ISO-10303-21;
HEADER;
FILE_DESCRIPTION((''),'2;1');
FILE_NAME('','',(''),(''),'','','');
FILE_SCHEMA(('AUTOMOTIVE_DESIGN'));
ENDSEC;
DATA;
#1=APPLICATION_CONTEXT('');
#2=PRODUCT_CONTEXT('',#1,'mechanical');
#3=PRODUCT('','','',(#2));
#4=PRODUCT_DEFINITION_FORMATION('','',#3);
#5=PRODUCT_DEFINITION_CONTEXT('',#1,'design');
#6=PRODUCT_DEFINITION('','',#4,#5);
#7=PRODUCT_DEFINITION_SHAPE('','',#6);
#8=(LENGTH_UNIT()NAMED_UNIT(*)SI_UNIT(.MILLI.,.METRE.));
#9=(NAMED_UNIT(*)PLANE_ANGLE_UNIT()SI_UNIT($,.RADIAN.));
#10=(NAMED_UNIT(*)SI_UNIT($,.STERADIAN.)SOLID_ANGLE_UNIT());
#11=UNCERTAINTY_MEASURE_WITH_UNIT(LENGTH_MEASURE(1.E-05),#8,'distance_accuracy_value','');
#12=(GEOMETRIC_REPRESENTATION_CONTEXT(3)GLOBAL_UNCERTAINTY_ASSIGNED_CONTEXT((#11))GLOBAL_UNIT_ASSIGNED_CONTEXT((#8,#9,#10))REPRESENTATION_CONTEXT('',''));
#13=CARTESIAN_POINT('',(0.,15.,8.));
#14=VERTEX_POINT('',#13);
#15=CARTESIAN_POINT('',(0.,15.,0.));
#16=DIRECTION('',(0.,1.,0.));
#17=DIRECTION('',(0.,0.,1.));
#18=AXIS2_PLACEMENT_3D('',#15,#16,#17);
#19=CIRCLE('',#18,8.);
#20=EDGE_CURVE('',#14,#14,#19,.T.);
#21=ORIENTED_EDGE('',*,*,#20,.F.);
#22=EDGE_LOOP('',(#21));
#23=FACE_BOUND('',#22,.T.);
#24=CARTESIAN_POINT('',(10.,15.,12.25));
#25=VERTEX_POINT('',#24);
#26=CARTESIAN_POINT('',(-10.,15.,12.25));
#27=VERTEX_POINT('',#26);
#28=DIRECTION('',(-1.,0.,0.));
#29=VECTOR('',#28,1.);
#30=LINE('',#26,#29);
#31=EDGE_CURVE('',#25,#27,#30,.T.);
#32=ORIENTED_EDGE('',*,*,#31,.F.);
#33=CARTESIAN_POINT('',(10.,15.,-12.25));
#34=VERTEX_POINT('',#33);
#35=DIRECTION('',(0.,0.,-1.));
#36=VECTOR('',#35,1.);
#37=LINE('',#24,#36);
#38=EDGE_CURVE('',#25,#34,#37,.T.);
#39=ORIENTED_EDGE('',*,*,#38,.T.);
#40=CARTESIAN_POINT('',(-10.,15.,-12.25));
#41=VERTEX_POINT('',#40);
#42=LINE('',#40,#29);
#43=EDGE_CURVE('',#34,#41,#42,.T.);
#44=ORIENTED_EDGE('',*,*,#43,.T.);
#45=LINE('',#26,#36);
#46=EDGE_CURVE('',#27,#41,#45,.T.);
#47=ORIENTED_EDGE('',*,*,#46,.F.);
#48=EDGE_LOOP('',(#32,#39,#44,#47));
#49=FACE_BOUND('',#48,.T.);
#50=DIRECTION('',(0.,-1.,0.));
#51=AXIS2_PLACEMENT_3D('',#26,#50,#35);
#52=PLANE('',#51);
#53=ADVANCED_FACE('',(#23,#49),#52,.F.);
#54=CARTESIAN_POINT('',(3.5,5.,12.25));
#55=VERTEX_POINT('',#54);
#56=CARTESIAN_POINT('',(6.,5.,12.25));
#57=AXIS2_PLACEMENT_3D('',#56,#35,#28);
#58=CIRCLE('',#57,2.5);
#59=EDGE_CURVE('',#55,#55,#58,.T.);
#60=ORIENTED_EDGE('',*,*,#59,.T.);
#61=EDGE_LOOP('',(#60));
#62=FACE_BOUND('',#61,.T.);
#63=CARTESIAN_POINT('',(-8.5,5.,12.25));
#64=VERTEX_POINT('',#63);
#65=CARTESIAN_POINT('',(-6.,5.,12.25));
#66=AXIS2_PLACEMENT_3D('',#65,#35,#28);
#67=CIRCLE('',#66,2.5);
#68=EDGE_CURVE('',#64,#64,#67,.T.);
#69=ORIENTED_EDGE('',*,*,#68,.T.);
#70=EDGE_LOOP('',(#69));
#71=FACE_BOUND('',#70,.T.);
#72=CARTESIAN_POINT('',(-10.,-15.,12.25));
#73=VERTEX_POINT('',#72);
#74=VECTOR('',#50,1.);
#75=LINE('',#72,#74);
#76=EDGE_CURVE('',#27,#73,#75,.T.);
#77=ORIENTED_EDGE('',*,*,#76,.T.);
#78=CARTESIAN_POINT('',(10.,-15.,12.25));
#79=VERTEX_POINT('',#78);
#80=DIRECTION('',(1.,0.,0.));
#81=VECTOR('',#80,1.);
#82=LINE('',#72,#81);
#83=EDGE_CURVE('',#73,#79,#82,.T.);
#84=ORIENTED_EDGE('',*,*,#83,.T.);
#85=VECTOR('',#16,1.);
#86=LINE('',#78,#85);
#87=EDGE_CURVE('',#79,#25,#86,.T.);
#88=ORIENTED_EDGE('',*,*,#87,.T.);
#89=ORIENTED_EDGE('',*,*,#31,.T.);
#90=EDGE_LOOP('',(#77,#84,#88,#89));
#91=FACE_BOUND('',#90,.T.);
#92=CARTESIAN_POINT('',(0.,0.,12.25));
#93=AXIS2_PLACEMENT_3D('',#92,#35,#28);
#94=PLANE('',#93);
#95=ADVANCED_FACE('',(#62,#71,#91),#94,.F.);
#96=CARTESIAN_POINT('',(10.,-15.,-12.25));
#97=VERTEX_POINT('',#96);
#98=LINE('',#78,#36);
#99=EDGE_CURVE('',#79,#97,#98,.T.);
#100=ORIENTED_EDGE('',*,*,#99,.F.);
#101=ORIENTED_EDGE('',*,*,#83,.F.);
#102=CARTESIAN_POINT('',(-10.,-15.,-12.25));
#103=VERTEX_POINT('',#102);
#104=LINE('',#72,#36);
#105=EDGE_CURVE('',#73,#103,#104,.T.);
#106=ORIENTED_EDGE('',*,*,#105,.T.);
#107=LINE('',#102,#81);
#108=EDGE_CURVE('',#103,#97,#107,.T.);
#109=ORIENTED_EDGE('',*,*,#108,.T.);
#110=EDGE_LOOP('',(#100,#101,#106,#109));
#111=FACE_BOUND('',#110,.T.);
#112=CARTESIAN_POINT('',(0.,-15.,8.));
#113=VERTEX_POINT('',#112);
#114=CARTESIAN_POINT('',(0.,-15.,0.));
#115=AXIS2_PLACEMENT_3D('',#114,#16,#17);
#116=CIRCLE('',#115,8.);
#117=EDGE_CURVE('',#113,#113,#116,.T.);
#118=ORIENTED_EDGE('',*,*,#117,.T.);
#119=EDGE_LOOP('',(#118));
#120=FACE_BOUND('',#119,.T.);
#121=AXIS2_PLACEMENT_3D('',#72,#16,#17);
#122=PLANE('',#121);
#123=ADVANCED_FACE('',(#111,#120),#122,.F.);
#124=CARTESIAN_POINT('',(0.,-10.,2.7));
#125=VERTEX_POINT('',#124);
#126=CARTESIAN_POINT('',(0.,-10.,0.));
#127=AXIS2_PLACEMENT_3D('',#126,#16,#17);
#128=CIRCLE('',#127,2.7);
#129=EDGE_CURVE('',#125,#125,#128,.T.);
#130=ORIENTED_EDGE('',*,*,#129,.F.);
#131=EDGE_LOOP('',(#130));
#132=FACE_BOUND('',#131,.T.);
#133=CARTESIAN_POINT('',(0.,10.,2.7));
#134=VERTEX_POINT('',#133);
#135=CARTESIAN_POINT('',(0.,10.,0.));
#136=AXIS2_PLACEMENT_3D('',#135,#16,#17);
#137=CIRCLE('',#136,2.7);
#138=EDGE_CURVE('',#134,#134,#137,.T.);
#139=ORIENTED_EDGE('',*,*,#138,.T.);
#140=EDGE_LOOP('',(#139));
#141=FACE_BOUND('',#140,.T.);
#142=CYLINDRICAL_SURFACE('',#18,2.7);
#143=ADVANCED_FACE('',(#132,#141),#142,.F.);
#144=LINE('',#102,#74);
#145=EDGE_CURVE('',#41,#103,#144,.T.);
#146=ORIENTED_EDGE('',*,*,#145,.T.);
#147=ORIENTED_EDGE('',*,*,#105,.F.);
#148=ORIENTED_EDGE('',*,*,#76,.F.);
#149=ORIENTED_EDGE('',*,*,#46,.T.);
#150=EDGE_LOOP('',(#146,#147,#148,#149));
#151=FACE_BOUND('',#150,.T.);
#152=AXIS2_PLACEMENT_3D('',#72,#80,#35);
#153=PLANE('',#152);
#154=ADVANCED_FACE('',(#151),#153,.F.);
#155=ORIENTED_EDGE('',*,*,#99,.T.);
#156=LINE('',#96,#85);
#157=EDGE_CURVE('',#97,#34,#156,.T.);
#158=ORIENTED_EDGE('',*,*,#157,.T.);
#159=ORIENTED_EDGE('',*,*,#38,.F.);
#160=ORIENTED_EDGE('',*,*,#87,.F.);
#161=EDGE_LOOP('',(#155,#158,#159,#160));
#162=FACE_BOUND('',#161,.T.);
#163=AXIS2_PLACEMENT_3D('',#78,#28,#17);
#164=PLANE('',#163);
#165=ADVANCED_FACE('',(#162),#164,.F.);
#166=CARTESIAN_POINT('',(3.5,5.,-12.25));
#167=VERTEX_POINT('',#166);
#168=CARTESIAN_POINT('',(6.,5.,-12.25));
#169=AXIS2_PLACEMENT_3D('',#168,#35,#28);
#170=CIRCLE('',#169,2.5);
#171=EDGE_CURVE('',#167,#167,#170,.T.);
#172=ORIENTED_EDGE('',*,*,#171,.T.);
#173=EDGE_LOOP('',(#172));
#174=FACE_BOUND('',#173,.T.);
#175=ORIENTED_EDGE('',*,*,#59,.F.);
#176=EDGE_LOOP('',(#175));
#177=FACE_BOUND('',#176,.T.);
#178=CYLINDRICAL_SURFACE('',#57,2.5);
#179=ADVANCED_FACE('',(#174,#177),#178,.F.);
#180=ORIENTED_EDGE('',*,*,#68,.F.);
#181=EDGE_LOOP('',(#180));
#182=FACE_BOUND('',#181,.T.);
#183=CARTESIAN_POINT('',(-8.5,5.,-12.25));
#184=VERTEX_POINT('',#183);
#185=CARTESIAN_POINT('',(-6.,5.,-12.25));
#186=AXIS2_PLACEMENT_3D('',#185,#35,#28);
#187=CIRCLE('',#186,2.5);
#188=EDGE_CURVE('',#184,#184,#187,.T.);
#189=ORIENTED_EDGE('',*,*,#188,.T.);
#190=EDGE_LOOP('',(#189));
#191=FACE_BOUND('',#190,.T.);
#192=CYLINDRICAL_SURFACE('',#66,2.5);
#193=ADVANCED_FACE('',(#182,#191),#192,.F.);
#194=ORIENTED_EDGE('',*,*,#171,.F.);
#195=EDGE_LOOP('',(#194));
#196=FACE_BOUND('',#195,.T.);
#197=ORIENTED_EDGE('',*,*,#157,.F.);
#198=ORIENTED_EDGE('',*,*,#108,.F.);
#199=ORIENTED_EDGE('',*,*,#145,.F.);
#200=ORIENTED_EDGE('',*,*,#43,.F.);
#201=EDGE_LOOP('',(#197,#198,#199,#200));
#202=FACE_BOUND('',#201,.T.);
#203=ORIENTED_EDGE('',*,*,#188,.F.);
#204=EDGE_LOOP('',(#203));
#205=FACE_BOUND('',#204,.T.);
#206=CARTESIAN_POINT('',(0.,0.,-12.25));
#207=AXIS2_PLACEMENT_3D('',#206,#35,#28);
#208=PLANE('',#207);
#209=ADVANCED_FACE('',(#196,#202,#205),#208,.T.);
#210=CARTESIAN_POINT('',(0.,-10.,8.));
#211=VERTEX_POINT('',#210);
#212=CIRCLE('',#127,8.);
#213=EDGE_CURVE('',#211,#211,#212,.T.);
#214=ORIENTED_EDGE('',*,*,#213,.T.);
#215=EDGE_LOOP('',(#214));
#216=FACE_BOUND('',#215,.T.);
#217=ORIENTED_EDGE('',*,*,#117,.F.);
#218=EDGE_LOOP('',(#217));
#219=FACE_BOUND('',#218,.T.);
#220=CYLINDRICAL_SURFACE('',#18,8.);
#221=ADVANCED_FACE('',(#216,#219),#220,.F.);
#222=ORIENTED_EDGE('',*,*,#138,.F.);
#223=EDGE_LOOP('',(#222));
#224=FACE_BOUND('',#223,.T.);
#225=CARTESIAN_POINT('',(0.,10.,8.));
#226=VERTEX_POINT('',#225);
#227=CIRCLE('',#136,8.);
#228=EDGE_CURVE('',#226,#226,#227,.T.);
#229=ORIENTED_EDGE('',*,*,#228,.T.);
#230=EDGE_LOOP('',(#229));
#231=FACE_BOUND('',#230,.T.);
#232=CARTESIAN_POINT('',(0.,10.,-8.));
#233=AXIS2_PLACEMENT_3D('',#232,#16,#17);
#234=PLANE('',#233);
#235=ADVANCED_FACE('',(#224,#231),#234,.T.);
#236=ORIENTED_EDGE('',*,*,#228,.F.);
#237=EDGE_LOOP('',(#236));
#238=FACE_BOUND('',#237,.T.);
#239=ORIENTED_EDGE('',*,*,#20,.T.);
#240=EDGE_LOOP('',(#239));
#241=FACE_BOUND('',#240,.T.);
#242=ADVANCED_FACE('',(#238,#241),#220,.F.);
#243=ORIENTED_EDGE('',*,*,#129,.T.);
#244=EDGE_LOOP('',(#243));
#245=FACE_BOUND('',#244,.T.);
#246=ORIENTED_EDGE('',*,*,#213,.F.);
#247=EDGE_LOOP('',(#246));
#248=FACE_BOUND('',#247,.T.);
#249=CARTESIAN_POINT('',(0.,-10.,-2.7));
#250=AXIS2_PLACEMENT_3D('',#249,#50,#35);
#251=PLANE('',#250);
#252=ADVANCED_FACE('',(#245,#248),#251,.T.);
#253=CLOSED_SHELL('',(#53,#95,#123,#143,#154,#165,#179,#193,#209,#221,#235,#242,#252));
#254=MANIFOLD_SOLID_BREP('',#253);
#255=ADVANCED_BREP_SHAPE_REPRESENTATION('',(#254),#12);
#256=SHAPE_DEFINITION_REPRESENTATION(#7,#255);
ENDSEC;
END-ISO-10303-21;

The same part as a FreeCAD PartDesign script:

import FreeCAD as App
import Part
import Sketcher
Q = App.Units.Quantity


def add_polygon(sketch, points):
    """Adds a closed chain of lines whose ends are joined by coincident constraints."""
    first, n = sketch.GeometryCount, len(points)
    for a, b in zip(points, points[1:] + points[:1]):
        sketch.addGeometry(Part.LineSegment(App.Vector(*a, 0), App.Vector(*b, 0)), False)
    for i in range(n):
        sketch.addConstraint(Sketcher.Constraint("Coincident", first + i, 2, first + (i + 1) % n, 1))

doc = App.newDocument("Part")
body = doc.addObject("PartDesign::Body", "Body")

# Sketch on XY plane
sketch1 = doc.addObject("Sketcher::SketchObject", "Sketch")
body.addObject(sketch1)
sketch1.AttachmentSupport = (doc.XY_Plane, [""])
sketch1.MapMode = "FlatFace"
add_polygon(sketch1, [(-10, 15), (-10, -15), (10, -15), (10, 15)])  # lines 0-3
sketch1.addConstraint([
    Sketcher.Constraint("Vertical", 0),
    Sketcher.Constraint("Horizontal", 1),
    Sketcher.Constraint("Vertical", 2),
    Sketcher.Constraint("Horizontal", 3),
    Sketcher.Constraint("Symmetric", 0, 2, 2, 2, -1, 1),
    Sketcher.Constraint("DistanceX", 1, 1, 1, 2, Q("20 mm")),
    Sketcher.Constraint("DistanceY", 0, 2, 0, 1, Q("30 mm")),
])
pad1 = doc.addObject("PartDesign::Pad", "Pad")
body.addObject(pad1)
pad1.Profile = sketch1
pad1.Length = 24.5
pad1.Midplane = True

# Sketch on YZ plane
sketch2 = doc.addObject("Sketcher::SketchObject", "Sketch001")
body.addObject(sketch2)
sketch2.AttachmentSupport = (doc.YZ_Plane, [""])
sketch2.MapMode = "FlatFace"
add_polygon(sketch2, [(15, 0), (-15, 0), (-15, -8), (-10, -8), (-10, -2.7), (10, -2.7), (10, -8), (15, -8)])  # lines 0-7
sketch2.addConstraint([
    Sketcher.Constraint("Horizontal", 0),
    Sketcher.Constraint("Vertical", 1),
    Sketcher.Constraint("Horizontal", 2),
    Sketcher.Constraint("Vertical", 3),
    Sketcher.Constraint("Horizontal", 4),
    Sketcher.Constraint("Vertical", 5),
    Sketcher.Constraint("Horizontal", 6),
    Sketcher.Constraint("Vertical", 7),
    Sketcher.Constraint("Symmetric", 0, 2, 7, 2, -1, 1),
    Sketcher.Constraint("Symmetric", 2, 2, 5, 2, -2),
    Sketcher.Constraint("DistanceX", 0, 2, 0, 1, Q("30 mm")),
    Sketcher.Constraint("DistanceX", 2, 1, 2, 2, Q("5 mm")),
    Sketcher.Constraint("DistanceY", 1, 2, 1, 1, Q("8 mm")),
    Sketcher.Constraint("DistanceY", 3, 1, 3, 2, Q("5.3 mm")),
])
groove = doc.addObject("PartDesign::Groove", "Groove")
body.addObject(groove)
groove.Profile = sketch2
groove.ReferenceAxis = (sketch2, ["H_Axis"])
groove.Angle = 360

# Sketch on XY plane
sketch3 = doc.addObject("Sketcher::SketchObject", "Sketch002")
body.addObject(sketch3)
sketch3.AttachmentSupport = (doc.XY_Plane, [""])
sketch3.MapMode = "FlatFace"
sketch3.AttachmentOffset = App.Placement(App.Vector(0, 0, -12.25), App.Rotation())
sketch3.addGeometry([
    Part.Circle(App.Vector(6, 5, 0), App.Vector(0, 0, 1), 2.5),
    Part.Circle(App.Vector(-6, 5, 0), App.Vector(0, 0, 1), 2.5),
], False)
sketch3.addConstraint([
    Sketcher.Constraint("Equal", 0, 1),
    Sketcher.Constraint("Symmetric", 0, 3, 1, 3, -2),
    Sketcher.Constraint("Diameter", 0, Q("5 mm")),
    Sketcher.Constraint("DistanceX", -1, 1, 0, 3, Q("6 mm")),
    Sketcher.Constraint("DistanceY", -1, 1, 0, 3, Q("5 mm")),
])
pocket1 = doc.addObject("PartDesign::Pocket", "Pocket")
body.addObject(pocket1)
pocket1.Profile = sketch3
pocket1.Type = "ThroughAll"
pocket1.Reversed = True

doc.recompute()
